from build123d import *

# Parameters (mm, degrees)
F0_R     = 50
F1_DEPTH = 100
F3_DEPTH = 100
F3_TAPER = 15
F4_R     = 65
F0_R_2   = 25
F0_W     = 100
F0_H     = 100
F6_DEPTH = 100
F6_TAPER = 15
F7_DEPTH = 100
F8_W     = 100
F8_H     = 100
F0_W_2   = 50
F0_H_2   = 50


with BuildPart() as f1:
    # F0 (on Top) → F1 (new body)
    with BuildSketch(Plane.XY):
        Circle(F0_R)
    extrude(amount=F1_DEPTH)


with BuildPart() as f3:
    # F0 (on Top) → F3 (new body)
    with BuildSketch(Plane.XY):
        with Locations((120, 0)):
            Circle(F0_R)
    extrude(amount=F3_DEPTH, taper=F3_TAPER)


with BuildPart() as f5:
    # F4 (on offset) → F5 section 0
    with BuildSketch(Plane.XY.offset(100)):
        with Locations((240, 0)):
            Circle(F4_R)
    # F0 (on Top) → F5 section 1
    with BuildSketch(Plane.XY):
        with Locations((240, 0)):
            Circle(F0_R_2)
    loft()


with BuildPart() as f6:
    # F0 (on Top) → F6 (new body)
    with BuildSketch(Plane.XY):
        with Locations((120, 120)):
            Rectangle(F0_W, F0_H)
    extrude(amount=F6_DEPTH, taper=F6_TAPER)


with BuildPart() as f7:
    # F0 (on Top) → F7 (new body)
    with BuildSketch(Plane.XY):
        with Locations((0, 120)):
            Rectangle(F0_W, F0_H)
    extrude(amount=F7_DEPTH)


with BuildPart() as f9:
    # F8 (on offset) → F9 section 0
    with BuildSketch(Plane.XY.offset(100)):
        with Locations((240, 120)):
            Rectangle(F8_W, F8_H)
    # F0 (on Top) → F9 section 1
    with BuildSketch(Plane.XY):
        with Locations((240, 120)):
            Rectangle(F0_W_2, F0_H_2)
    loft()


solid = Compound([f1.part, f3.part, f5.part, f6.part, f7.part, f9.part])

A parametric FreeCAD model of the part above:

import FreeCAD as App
import Part
import Sketcher

V = App.Vector
Q = App.Units.Quantity

doc = App.newDocument("Part")
params = doc.addObject("Spreadsheet::Sheet", "Params")
for row, (alias, value) in enumerate([
    ("sketch1_diameter", "100 mm"),
    ("pad1_length", "100 mm"),
    ("sketch2_diameter", "100 mm"),
    ("pad2_length", "100 mm"),
    ("pad2_taper", "-15 deg"),
    ("sketch3_diameter", "130 mm"),
    ("sketch4_diameter", "50 mm"),
    ("sketch5_width", "100 mm"),
    ("pad3_length", "100 mm"),
    ("pad3_taper", "-15 deg"),
    ("sketch6_width", "100 mm"),
    ("pad4_length", "100 mm"),
    ("sketch7_width", "100 mm"),
    ("sketch8_width", "50 mm"),
], start=1):
    params.set(f"A{row}", alias)
    params.set(f"B{row}", "=" + value)
    params.setAlias(f"B{row}", alias)

body = doc.addObject("PartDesign::Body", "Body")

# Sketch on XY plane
sketch1 = body.newObject("Sketcher::SketchObject", "Sketch")
sketch1.AttachmentSupport = (doc.getObject("XY_Plane"), [""])
sketch1.MapMode = "FlatFace"
sketch1.addGeometry(Part.Circle(V(0, 0, 0), V(0, 0, 1), 50), False)
sketch1.addConstraint([
    Sketcher.Constraint("Coincident", 0, 3, -1, 1),
    Sketcher.Constraint("Diameter", 0, Q("100 mm")),
])
sketch1.setExpression("Constraints[1]", "Params.sketch1_diameter")
pad1 = body.newObject("PartDesign::Pad", "Pad")
pad1.Profile = sketch1
pad1.setExpression("Length", "Params.pad1_length")
body2 = doc.addObject("PartDesign::Body", "Body001")

# Sketch on XY plane
sketch2 = body2.newObject("Sketcher::SketchObject", "Sketch001")
sketch2.AttachmentSupport = (doc.getObject("XY_Plane001"), [""])
sketch2.MapMode = "FlatFace"
sketch2.addGeometry(Part.Circle(V(120, 0, 0), V(0, 0, 1), 50), False)
sketch2.addConstraint([
    Sketcher.Constraint("PointOnObject", 0, 3, -1),
    Sketcher.Constraint("Diameter", 0, Q("100 mm")),
    Sketcher.Constraint("DistanceX", -1, 1, 0, 3, Q("120 mm")),
])
sketch2.setExpression("Constraints[1]", "Params.sketch2_diameter")
pad2 = body2.newObject("PartDesign::Pad", "Pad001")
pad2.Profile = sketch2
pad2.setExpression("Length", "Params.pad2_length")
pad2.setExpression("TaperAngle", "Params.pad2_taper")
body3 = doc.addObject("PartDesign::Body", "Body002")

# Sketch on XY plane
sketch3 = body3.newObject("Sketcher::SketchObject", "Sketch002")
sketch3.AttachmentSupport = (doc.getObject("XY_Plane002"), [""])
sketch3.MapMode = "FlatFace"
sketch3.AttachmentOffset = App.Placement(V(0, 0, 100), App.Rotation())
sketch3.addGeometry(Part.Circle(V(240, 0, 0), V(0, 0, 1), 65), False)
sketch3.addConstraint([
    Sketcher.Constraint("PointOnObject", 0, 3, -1),
    Sketcher.Constraint("Diameter", 0, Q("130 mm")),
    Sketcher.Constraint("DistanceX", -1, 1, 0, 3, Q("240 mm")),
])
sketch3.setExpression("Constraints[1]", "Params.sketch3_diameter")

# Sketch on XY plane
sketch4 = body3.newObject("Sketcher::SketchObject", "Sketch003")
sketch4.AttachmentSupport = (doc.getObject("XY_Plane002"), [""])
sketch4.MapMode = "FlatFace"
sketch4.addGeometry(Part.Circle(V(240, 0, 0), V(0, 0, 1), 25), False)
sketch4.addConstraint([
    Sketcher.Constraint("PointOnObject", 0, 3, -1),
    Sketcher.Constraint("Diameter", 0, Q("50 mm")),
    Sketcher.Constraint("DistanceX", -1, 1, 0, 3, Q("240 mm")),
])
sketch4.setExpression("Constraints[1]", "Params.sketch4_diameter")

additiveloft = body3.newObject("PartDesign::AdditiveLoft", "AdditiveLoft")
additiveloft.Profile = sketch3
additiveloft.Sections = [sketch4]
body4 = doc.addObject("PartDesign::Body", "Body003")

# Sketch on XY plane
sketch5 = body4.newObject("Sketcher::SketchObject", "Sketch004")
sketch5.AttachmentSupport = (doc.getObject("XY_Plane003"), [""])
sketch5.MapMode = "FlatFace"
sketch5.addGeometry([
    Part.LineSegment(V(70, 170, 0), V(70, 70, 0)),
    Part.LineSegment(V(70, 70, 0), V(170, 70, 0)),
    Part.LineSegment(V(170, 70, 0), V(170, 170, 0)),
    Part.LineSegment(V(170, 170, 0), V(70, 170, 0)),
], False)
sketch5.addConstraint([
    Sketcher.Constraint("Coincident", 0, 2, 1, 1),
    Sketcher.Constraint("Coincident", 1, 2, 2, 1),
    Sketcher.Constraint("Coincident", 2, 2, 3, 1),
    Sketcher.Constraint("Coincident", 3, 2, 0, 1),
    Sketcher.Constraint("Vertical", 0),
    Sketcher.Constraint("Horizontal", 1),
    Sketcher.Constraint("Vertical", 2),
    Sketcher.Constraint("Horizontal", 3),
    Sketcher.Constraint("Equal", 3, 0),
    Sketcher.Constraint("DistanceX", 1, 1, 1, 2, Q("100 mm")),
    Sketcher.Constraint("DistanceX", -1, 1, 0, 2, Q("70 mm")),
    Sketcher.Constraint("DistanceY", -1, 1, 0, 2, Q("70 mm")),
])
sketch5.setExpression("Constraints[9]", "Params.sketch5_width")
pad3 = body4.newObject("PartDesign::Pad", "Pad002")
pad3.Profile = sketch5
pad3.setExpression("Length", "Params.pad3_length")
pad3.setExpression("TaperAngle", "Params.pad3_taper")
body5 = doc.addObject("PartDesign::Body", "Body004")

# Sketch on XY plane
sketch6 = body5.newObject("Sketcher::SketchObject", "Sketch005")
sketch6.AttachmentSupport = (doc.getObject("XY_Plane004"), [""])
sketch6.MapMode = "FlatFace"
sketch6.addGeometry([
    Part.LineSegment(V(-50, 170, 0), V(-50, 70, 0)),
    Part.LineSegment(V(-50, 70, 0), V(50, 70, 0)),
    Part.LineSegment(V(50, 70, 0), V(50, 170, 0)),
    Part.LineSegment(V(50, 170, 0), V(-50, 170, 0)),
], False)
sketch6.addConstraint([
    Sketcher.Constraint("Coincident", 0, 2, 1, 1),
    Sketcher.Constraint("Coincident", 1, 2, 2, 1),
    Sketcher.Constraint("Coincident", 2, 2, 3, 1),
    Sketcher.Constraint("Coincident", 3, 2, 0, 1),
    Sketcher.Constraint("Vertical", 0),
    Sketcher.Constraint("Horizontal", 1),
    Sketcher.Constraint("Vertical", 2),
    Sketcher.Constraint("Horizontal", 3),
    Sketcher.Constraint("Equal", 3, 0),
    Sketcher.Constraint("DistanceX", 1, 1, 1, 2, Q("100 mm")),
    Sketcher.Constraint("DistanceX", 0, 2, -1, 1, Q("50 mm")),
    Sketcher.Constraint("DistanceY", -1, 1, 0, 2, Q("70 mm")),
])
sketch6.setExpression("Constraints[9]", "Params.sketch6_width")
pad4 = body5.newObject("PartDesign::Pad", "Pad003")
pad4.Profile = sketch6
pad4.setExpression("Length", "Params.pad4_length")
body6 = doc.addObject("PartDesign::Body", "Body005")

# Sketch on XY plane
sketch7 = body6.newObject("Sketcher::SketchObject", "Sketch006")
sketch7.AttachmentSupport = (doc.getObject("XY_Plane005"), [""])
sketch7.MapMode = "FlatFace"
sketch7.AttachmentOffset = App.Placement(V(0, 0, 100), App.Rotation())
sketch7.addGeometry([
    Part.LineSegment(V(190, 170, 0), V(190, 70, 0)),
    Part.LineSegment(V(190, 70, 0), V(290, 70, 0)),
    Part.LineSegment(V(290, 70, 0), V(290, 170, 0)),
    Part.LineSegment(V(290, 170, 0), V(190, 170, 0)),
], False)
sketch7.addConstraint([
    Sketcher.Constraint("Coincident", 0, 2, 1, 1),
    Sketcher.Constraint("Coincident", 1, 2, 2, 1),
    Sketcher.Constraint("Coincident", 2, 2, 3, 1),
    Sketcher.Constraint("Coincident", 3, 2, 0, 1),
    Sketcher.Constraint("Vertical", 0),
    Sketcher.Constraint("Horizontal", 1),
    Sketcher.Constraint("Vertical", 2),
    Sketcher.Constraint("Horizontal", 3),
    Sketcher.Constraint("Equal", 3, 0),
    Sketcher.Constraint("DistanceX", 1, 1, 1, 2, Q("100 mm")),
    Sketcher.Constraint("DistanceX", -1, 1, 0, 2, Q("190 mm")),
    Sketcher.Constraint("DistanceY", -1, 1, 0, 2, Q("70 mm")),
])
sketch7.setExpression("Constraints[9]", "Params.sketch7_width")

# Sketch on XY plane
sketch8 = body6.newObject("Sketcher::SketchObject", "Sketch007")
sketch8.AttachmentSupport = (doc.getObject("XY_Plane005"), [""])
sketch8.MapMode = "FlatFace"
sketch8.addGeometry([
    Part.LineSegment(V(215, 145, 0), V(215, 95, 0)),
    Part.LineSegment(V(215, 95, 0), V(265, 95, 0)),
    Part.LineSegment(V(265, 95, 0), V(265, 145, 0)),
    Part.LineSegment(V(265, 145, 0), V(215, 145, 0)),
], False)
sketch8.addConstraint([
    Sketcher.Constraint("Coincident", 0, 2, 1, 1),
    Sketcher.Constraint("Coincident", 1, 2, 2, 1),
    Sketcher.Constraint("Coincident", 2, 2, 3, 1),
    Sketcher.Constraint("Coincident", 3, 2, 0, 1),
    Sketcher.Constraint("Vertical", 0),
    Sketcher.Constraint("Horizontal", 1),
    Sketcher.Constraint("Vertical", 2),
    Sketcher.Constraint("Horizontal", 3),
    Sketcher.Constraint("Equal", 3, 0),
    Sketcher.Constraint("DistanceX", 1, 1, 1, 2, Q("50 mm")),
    Sketcher.Constraint("DistanceX", -1, 1, 0, 2, Q("215 mm")),
    Sketcher.Constraint("DistanceY", -1, 1, 0, 2, Q("95 mm")),
])
sketch8.setExpression("Constraints[9]", "Params.sketch8_width")

additiveloft2 = body6.newObject("PartDesign::AdditiveLoft", "AdditiveLoft001")
additiveloft2.Profile = sketch7
additiveloft2.Sections = [sketch8]

doc.recompute()
